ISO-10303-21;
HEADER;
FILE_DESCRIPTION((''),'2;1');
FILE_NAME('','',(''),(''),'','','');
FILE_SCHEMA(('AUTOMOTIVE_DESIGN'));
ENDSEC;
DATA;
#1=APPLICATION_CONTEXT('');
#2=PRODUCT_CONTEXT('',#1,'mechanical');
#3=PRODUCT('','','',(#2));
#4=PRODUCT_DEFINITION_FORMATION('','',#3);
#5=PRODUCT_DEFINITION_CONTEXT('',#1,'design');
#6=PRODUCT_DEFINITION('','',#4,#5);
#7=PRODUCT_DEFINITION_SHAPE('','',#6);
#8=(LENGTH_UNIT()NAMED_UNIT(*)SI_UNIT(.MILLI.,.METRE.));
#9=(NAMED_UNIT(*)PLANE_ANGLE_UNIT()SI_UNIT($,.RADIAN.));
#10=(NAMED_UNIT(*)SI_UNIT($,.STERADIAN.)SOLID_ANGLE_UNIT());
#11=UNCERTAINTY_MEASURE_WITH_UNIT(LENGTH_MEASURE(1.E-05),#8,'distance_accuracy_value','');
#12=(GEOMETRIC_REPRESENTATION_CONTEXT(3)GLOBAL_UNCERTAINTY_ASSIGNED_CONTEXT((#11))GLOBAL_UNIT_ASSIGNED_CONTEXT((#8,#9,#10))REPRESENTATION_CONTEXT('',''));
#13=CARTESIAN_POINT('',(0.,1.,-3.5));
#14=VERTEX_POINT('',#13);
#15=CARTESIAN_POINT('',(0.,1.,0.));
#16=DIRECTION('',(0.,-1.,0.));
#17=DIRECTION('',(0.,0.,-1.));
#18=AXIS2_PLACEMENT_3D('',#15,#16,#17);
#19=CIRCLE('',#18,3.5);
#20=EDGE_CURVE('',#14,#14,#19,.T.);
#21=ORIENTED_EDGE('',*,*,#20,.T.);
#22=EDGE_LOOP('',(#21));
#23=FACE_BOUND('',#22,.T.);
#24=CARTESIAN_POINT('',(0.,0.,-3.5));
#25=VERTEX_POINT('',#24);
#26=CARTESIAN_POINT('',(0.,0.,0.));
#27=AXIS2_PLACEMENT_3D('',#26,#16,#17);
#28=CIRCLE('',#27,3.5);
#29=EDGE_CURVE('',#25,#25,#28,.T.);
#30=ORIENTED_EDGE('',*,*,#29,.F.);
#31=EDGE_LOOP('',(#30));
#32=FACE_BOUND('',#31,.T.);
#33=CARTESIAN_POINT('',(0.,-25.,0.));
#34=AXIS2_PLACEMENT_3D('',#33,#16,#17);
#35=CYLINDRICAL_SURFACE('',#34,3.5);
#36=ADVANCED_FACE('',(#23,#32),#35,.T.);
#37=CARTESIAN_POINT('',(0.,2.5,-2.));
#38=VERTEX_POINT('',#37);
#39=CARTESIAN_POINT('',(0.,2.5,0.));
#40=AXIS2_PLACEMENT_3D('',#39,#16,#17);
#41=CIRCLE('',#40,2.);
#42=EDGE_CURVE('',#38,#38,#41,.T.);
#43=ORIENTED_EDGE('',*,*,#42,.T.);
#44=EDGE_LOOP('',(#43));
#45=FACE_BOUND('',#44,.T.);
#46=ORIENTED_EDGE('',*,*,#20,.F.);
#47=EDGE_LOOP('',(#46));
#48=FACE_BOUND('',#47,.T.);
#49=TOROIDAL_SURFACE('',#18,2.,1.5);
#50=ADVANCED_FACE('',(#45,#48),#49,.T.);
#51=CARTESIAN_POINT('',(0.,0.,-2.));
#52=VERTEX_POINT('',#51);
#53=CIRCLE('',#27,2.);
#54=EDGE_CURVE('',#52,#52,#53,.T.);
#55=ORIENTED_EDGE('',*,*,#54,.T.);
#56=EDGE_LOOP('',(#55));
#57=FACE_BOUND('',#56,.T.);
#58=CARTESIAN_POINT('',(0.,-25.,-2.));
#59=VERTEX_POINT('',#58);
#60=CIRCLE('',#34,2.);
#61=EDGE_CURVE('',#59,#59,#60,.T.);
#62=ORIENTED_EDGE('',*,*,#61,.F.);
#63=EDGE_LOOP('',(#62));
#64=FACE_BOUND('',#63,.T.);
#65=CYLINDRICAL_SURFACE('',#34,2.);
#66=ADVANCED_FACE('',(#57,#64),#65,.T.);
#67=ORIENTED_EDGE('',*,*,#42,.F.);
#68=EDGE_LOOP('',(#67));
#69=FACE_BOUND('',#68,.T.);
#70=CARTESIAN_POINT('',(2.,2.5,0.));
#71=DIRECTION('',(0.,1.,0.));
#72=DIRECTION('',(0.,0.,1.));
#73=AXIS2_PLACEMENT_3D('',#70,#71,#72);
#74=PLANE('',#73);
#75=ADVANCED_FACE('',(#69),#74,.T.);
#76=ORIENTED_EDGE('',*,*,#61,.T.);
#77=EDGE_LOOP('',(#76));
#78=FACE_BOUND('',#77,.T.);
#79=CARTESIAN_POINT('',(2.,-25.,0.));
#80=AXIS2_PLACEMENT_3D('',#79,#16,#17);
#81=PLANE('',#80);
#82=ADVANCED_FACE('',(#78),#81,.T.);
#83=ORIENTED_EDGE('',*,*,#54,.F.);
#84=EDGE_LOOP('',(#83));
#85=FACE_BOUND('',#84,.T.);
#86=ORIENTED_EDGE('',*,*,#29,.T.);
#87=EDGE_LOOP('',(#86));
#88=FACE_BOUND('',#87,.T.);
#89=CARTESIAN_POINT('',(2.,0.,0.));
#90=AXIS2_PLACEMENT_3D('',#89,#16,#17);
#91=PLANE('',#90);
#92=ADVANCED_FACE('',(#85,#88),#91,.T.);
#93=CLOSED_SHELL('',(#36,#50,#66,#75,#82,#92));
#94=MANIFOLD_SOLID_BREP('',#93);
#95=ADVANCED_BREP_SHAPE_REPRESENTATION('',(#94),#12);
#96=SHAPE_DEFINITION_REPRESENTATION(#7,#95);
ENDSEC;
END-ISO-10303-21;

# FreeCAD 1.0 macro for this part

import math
import FreeCAD as App
import Part
import Sketcher

V = App.Vector

doc = App.newDocument("Part")
params = doc.addObject("Spreadsheet::Sheet", "Params")
for row, (alias, value) in enumerate([
    ("sketch1_radius", "1.5 mm"),
    ("sketch1_width", "2 mm"),
    ("sketch1_height", "1 mm"),
    ("sketch1_height2", "25 mm"),
    ("revolution_angle", "360 deg"),
], start=1):
    params.set(f"A{row}", alias)
    params.set(f"B{row}", "=" + value)
    params.setAlias(f"B{row}", alias)

body = doc.addObject("PartDesign::Body", "Body")

sketch1 = body.newObject("Sketcher::SketchObject", "Sketch")
sketch1.AttachmentSupport = (doc.getObject("XY_Plane"), [""])
sketch1.MapMode = "FlatFace"
sketch1.addGeometry([
    Part.LineSegment(V(2, 0, 0), V(3.5, 0, 0)),
    Part.LineSegment(V(3.5, 0, 0), V(3.5, 1, 0)),
    Part.ArcOfCircle(Part.Circle(V(2, 1, 0), V(0, 0, 1), 1.5), math.radians(0), math.radians(90)),
    Part.LineSegment(V(2, 2.5, 0), V(0, 2.5, 0)),
    Part.LineSegment(V(0, 2.5, 0), V(0, -25, 0)),
    Part.LineSegment(V(0, -25, 0), V(2, -25, 0)),
    Part.LineSegment(V(2, -25, 0), V(2, 0, 0)),
], False)
sketch1.addConstraint([
    Sketcher.Constraint("Coincident", 0, 2, 1, 1),
    Sketcher.Constraint("Tangent", 1, 2, 2, 1),
    Sketcher.Constraint("Tangent", 2, 2, 3, 1),
    Sketcher.Constraint("Coincident", 3, 2, 4, 1),
    Sketcher.Constraint("Coincident", 4, 2, 5, 1),
    Sketcher.Constraint("Coincident", 5, 2, 6, 1),
    Sketcher.Constraint("Coincident", 6, 2, 0, 1),
    Sketcher.Constraint("Horizontal", 0),
    Sketcher.Constraint("Vertical", 1),
    Sketcher.Constraint("Horizontal", 3),
    Sketcher.Constraint("Vertical", 4),
    Sketcher.Constraint("Horizontal", 5),
    Sketcher.Constraint("Vertical", 6),
    Sketcher.Constraint("PointOnObject", 0, 2, -1),
    Sketcher.Constraint("PointOnObject", 3, 2, -2),
    Sketcher.Constraint("Vertical", 2, 2, 5, 2),
    Sketcher.Constraint("Radius", 2, 1.5),
    Sketcher.Constraint("DistanceX", 3, 2, 3, 1, 2.0),
    Sketcher.Constraint("DistanceY", 1, 1, 1, 2, 1.0),
    Sketcher.Constraint("DistanceY", 6, 1, 6, 2, 25.0),
])
sketch1.setExpression("Constraints[16]", "Params.sketch1_radius")
sketch1.setExpression("Constraints[17]", "Params.sketch1_width")
sketch1.setExpression("Constraints[18]", "Params.sketch1_height")
sketch1.setExpression("Constraints[19]", "Params.sketch1_height2")
revolution = body.newObject("PartDesign::Revolution", "Revolution")
revolution.Profile = sketch1
revolution.ReferenceAxis = (sketch1, ["V_Axis"])
revolution.setExpression("Angle", "Params.revolution_angle")

doc.recompute()
